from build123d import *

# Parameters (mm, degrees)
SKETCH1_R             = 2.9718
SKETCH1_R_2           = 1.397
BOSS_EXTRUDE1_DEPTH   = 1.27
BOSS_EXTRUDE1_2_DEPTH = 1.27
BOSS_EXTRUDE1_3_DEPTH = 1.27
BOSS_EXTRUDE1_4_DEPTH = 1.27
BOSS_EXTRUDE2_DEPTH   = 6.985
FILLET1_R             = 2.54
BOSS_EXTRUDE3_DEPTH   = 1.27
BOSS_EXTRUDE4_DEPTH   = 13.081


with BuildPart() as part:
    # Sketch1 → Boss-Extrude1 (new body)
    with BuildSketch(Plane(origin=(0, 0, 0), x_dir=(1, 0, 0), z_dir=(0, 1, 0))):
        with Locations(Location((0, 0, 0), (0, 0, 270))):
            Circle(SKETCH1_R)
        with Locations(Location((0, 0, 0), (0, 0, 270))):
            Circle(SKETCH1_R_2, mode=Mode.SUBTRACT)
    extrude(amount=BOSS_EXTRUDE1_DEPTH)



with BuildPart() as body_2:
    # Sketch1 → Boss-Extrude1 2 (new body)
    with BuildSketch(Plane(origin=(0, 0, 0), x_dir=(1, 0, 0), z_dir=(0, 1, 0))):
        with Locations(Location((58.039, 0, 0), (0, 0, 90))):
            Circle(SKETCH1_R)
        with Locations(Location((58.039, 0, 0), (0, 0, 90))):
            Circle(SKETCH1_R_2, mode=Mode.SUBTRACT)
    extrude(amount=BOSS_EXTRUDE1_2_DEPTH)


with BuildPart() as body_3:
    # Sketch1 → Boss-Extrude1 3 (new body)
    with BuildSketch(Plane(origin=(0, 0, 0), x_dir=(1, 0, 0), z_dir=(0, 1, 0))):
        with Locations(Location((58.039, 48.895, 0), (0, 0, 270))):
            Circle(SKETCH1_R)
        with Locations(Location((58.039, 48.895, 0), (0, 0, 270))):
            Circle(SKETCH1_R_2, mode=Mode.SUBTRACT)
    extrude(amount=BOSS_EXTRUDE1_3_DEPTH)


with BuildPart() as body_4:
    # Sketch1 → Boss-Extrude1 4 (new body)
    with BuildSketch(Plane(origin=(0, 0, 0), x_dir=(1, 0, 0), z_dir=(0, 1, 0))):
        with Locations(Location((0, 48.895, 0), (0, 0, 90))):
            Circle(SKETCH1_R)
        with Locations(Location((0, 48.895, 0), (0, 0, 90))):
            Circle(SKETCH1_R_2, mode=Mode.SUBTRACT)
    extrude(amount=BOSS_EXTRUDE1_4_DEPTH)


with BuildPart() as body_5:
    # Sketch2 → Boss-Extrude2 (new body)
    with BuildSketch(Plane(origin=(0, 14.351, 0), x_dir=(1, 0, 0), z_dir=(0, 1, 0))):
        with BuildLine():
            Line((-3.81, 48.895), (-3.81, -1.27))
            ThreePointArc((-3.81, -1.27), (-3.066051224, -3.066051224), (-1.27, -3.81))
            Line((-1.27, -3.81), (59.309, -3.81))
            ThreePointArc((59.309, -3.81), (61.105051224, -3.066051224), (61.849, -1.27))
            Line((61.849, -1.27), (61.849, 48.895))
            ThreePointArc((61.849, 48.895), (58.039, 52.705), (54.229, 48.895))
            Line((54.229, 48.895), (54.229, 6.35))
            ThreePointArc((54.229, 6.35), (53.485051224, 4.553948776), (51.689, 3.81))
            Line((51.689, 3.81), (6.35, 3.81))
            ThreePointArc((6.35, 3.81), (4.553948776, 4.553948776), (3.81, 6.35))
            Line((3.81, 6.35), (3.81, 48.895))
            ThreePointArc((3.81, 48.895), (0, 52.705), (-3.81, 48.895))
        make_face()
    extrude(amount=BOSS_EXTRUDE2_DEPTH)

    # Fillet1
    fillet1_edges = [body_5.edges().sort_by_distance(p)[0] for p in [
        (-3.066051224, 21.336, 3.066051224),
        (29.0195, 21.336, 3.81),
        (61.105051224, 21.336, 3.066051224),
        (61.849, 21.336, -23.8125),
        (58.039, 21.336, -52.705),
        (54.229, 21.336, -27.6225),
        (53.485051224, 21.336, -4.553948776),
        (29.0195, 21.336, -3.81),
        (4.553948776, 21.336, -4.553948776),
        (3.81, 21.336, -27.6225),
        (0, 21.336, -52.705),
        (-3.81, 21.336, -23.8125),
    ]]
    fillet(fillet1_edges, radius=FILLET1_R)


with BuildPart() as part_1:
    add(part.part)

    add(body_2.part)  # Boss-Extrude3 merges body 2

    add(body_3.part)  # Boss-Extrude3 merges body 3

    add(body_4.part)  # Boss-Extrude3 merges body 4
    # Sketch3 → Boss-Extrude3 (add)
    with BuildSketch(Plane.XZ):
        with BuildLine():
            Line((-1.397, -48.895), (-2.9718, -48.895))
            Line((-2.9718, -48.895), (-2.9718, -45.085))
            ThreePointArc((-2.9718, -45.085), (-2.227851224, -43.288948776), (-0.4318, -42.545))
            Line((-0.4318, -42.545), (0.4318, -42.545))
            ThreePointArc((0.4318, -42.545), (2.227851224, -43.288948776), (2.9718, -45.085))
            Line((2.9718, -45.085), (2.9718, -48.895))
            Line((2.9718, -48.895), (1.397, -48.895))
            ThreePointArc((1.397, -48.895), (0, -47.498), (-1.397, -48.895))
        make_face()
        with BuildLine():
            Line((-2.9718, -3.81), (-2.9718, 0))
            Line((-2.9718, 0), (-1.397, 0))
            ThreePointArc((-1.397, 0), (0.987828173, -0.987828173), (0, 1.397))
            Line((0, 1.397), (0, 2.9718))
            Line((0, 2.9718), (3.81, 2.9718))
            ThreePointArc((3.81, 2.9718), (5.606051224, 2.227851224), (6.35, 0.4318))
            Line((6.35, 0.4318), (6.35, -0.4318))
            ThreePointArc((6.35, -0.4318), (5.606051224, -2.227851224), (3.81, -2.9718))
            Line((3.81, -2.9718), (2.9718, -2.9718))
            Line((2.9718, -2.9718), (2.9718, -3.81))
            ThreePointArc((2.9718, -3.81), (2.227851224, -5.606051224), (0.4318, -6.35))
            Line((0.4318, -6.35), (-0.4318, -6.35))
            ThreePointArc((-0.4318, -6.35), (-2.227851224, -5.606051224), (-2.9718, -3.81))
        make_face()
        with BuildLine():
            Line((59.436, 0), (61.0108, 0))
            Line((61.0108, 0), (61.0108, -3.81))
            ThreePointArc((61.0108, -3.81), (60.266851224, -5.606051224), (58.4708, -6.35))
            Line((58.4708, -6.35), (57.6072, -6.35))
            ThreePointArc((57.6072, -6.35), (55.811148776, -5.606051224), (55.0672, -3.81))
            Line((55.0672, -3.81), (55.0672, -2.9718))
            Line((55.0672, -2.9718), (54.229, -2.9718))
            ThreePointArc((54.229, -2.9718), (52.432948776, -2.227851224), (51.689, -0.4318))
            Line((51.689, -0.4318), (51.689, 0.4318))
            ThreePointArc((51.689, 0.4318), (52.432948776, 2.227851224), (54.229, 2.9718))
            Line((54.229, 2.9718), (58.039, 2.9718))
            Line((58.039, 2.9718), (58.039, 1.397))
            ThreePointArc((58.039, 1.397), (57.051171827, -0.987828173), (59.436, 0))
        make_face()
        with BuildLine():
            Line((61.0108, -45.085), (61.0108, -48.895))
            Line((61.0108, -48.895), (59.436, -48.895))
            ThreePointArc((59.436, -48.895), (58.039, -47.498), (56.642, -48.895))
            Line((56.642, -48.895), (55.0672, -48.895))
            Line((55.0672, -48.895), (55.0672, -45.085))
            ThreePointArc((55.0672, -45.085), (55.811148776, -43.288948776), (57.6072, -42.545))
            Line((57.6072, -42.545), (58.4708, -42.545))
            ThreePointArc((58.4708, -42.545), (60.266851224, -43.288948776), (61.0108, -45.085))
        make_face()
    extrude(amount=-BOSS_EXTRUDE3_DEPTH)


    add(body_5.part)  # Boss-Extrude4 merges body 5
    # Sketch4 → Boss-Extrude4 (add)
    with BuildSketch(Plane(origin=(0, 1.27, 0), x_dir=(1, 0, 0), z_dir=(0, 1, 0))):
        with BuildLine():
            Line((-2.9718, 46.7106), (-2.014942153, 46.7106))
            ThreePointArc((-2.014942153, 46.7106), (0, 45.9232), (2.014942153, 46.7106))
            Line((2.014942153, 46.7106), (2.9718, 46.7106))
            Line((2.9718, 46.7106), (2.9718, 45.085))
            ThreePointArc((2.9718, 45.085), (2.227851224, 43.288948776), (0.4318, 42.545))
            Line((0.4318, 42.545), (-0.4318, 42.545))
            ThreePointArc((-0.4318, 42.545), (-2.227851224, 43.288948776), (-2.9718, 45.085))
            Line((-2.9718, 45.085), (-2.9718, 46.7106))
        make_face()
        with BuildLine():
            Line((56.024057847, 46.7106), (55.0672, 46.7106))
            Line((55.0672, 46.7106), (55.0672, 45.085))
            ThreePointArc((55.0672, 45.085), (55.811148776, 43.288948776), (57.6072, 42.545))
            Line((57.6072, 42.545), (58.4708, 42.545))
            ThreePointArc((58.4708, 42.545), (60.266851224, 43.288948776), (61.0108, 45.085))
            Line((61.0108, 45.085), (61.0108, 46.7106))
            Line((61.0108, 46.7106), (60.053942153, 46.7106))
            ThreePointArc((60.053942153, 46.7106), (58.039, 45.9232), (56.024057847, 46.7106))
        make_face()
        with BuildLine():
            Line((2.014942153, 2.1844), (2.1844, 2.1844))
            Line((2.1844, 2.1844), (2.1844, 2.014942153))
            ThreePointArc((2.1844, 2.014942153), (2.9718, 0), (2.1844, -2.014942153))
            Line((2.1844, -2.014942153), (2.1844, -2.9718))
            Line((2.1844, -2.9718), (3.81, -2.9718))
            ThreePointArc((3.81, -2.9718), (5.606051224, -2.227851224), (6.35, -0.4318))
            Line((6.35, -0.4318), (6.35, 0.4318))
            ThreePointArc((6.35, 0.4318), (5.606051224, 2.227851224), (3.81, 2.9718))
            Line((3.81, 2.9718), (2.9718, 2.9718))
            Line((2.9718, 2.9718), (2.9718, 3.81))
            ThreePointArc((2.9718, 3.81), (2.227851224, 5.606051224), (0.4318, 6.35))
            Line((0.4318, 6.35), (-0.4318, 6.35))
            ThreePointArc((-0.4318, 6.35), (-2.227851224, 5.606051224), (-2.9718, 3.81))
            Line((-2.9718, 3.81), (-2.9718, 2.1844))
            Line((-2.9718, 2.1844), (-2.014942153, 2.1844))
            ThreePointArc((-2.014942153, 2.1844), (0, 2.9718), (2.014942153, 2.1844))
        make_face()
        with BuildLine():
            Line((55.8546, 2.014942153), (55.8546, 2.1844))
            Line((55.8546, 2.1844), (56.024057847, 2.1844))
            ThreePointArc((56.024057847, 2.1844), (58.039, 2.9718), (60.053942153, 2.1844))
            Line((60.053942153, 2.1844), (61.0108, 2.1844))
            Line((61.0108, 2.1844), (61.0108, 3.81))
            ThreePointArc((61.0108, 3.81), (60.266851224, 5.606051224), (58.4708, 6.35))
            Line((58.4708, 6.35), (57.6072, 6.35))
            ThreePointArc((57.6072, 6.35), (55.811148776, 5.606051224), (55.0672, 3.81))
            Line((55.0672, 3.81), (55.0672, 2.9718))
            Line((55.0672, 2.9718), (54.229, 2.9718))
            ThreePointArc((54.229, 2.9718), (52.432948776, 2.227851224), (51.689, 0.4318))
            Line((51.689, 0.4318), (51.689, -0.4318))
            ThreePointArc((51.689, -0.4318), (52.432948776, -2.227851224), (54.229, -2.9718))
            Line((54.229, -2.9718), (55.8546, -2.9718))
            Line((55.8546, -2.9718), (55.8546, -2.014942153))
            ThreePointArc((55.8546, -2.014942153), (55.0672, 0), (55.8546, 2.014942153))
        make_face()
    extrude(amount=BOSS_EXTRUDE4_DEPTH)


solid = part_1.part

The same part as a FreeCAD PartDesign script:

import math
import FreeCAD as App
import Part
import Sketcher
from FreeCAD import Vector
Q = App.Units.Quantity


def edges_at(feature, points):
    """Names of the edges that pass closest to the given points."""
    edges = feature.Shape.Edges
    near = lambda p: min(range(len(edges)), key=lambda i: edges[i].distToShape(Part.Vertex(*p))[0])
    return sorted({f"Edge{near(p) + 1}" for p in points})

doc = App.newDocument("Part")
body = doc.addObject("PartDesign::Body", "Body")

sketch1 = body.newObject("Sketcher::SketchObject", "Sketch")
sketch1.AttachmentSupport = (doc.getObject("XZ_Plane"), [""])
sketch1.MapMode = "FlatFace"
sketch1.addGeometry([
    Part.Circle(Vector(0, 0, 0), Vector(0, 0, 1), 2.9718),
    Part.Circle(Vector(0, 0, 0), Vector(0, 0, 1), 1.397),
], False)
sketch1.addConstraint([
    Sketcher.Constraint("Coincident", 0, 3, -1, 1),
    Sketcher.Constraint("Coincident", 1, 3, -1, 1),
    Sketcher.Constraint("Diameter", 1, Q("0.11 in")),
    Sketcher.Constraint("Diameter", 0, Q("0.234 in")),
])
pad1 = body.newObject("PartDesign::Pad", "Pad")
pad1.Profile = sketch1
pad1.Length = Q("0.05 in")
pad1.Reversed = True
body2 = doc.addObject("PartDesign::Body", "Body001")

sketch2 = body2.newObject("Sketcher::SketchObject", "Sketch001")
sketch2.AttachmentSupport = (doc.getObject("XZ_Plane001"), [""])
sketch2.MapMode = "FlatFace"
sketch2.addGeometry([
    Part.Circle(Vector(58.039, 0, 0), Vector(0, 0, 1), 2.9718),
    Part.Circle(Vector(58.039, 0, 0), Vector(0, 0, 1), 1.397),
], False)
sketch2.addConstraint([
    Sketcher.Constraint("Coincident", 1, 3, 0, 3),
    Sketcher.Constraint("PointOnObject", 0, 3, -1),
    Sketcher.Constraint("Diameter", 1, Q("0.11 in")),
    Sketcher.Constraint("Diameter", 0, Q("0.234 in")),
    Sketcher.Constraint("DistanceX", -1, 1, 0, 3, Q("2.285 in")),
])
pad2 = body2.newObject("PartDesign::Pad", "Pad001")
pad2.Profile = sketch2
pad2.Length = Q("0.05 in")
pad2.Reversed = True
body3 = doc.addObject("PartDesign::Body", "Body002")

sketch3 = body3.newObject("Sketcher::SketchObject", "Sketch002")
sketch3.AttachmentSupport = (doc.getObject("XZ_Plane002"), [""])
sketch3.MapMode = "FlatFace"
sketch3.addGeometry([
    Part.Circle(Vector(58.039, -48.895, 0), Vector(0, 0, 1), 2.9718),
    Part.Circle(Vector(58.039, -48.895, 0), Vector(0, 0, 1), 1.397),
], False)
sketch3.addConstraint([
    Sketcher.Constraint("Coincident", 1, 3, 0, 3),
    Sketcher.Constraint("Diameter", 1, Q("0.11 in")),
    Sketcher.Constraint("Diameter", 0, Q("0.234 in")),
    Sketcher.Constraint("DistanceX", -1, 1, 0, 3, Q("2.285 in")),
    Sketcher.Constraint("DistanceY", 0, 3, -1, 1, Q("1.925 in")),
])
pad3 = body3.newObject("PartDesign::Pad", "Pad002")
pad3.Profile = sketch3
pad3.Length = Q("0.05 in")
pad3.Reversed = True
body4 = doc.addObject("PartDesign::Body", "Body003")

sketch4 = body4.newObject("Sketcher::SketchObject", "Sketch003")
sketch4.AttachmentSupport = (doc.getObject("XZ_Plane003"), [""])
sketch4.MapMode = "FlatFace"
sketch4.addGeometry([
    Part.Circle(Vector(0, -48.895, 0), Vector(0, 0, 1), 2.9718),
    Part.Circle(Vector(0, -48.895, 0), Vector(0, 0, 1), 1.397),
], False)
sketch4.addConstraint([
    Sketcher.Constraint("Coincident", 1, 3, 0, 3),
    Sketcher.Constraint("PointOnObject", 0, 3, -2),
    Sketcher.Constraint("Diameter", 1, Q("0.11 in")),
    Sketcher.Constraint("Diameter", 0, Q("0.234 in")),
    Sketcher.Constraint("DistanceY", 0, 3, -1, 1, Q("1.925 in")),
])
pad4 = body4.newObject("PartDesign::Pad", "Pad003")
pad4.Profile = sketch4
pad4.Length = Q("0.05 in")
pad4.Reversed = True
body5 = doc.addObject("PartDesign::Body", "Body004")

sketch5 = body5.newObject("Sketcher::SketchObject", "Sketch004")
sketch5.AttachmentSupport = (doc.getObject("XZ_Plane004"), [""])
sketch5.MapMode = "FlatFace"
sketch5.AttachmentOffset = App.Placement(Vector(0, 0, -0.565 * 25.4), App.Rotation())
sketch5.addGeometry([
    Part.LineSegment(Vector(-3.81, -48.895, 0), Vector(-3.81, 1.27, 0)),
    Part.ArcOfCircle(Part.Circle(Vector(-1.27, 1.27, 0), Vector(0, 0, 1), 2.54), math.radians(90), math.radians(180)),
    Part.LineSegment(Vector(-1.27, 3.81, 0), Vector(59.309, 3.81, 0)),
    Part.ArcOfCircle(Part.Circle(Vector(59.309, 1.27, 0), Vector(0, 0, 1), 2.54), math.radians(0), math.radians(90)),
    Part.LineSegment(Vector(61.849, 1.27, 0), Vector(61.849, -48.895, 0)),
    Part.ArcOfCircle(Part.Circle(Vector(58.039, -48.895, 0), Vector(0, 0, 1), 3.81), math.radians(180), math.radians(360)),
    Part.LineSegment(Vector(54.229, -48.895, 0), Vector(54.229, -6.35, 0)),
    Part.ArcOfCircle(Part.Circle(Vector(51.689, -6.35, 0), Vector(0, 0, 1), 2.54), math.radians(0), math.radians(90)),
    Part.LineSegment(Vector(51.689, -3.81, 0), Vector(6.35, -3.81, 0)),
    Part.ArcOfCircle(Part.Circle(Vector(6.35, -6.35, 0), Vector(0, 0, 1), 2.54), math.radians(90), math.radians(180)),
    Part.LineSegment(Vector(3.81, -6.35, 0), Vector(3.81, -48.895, 0)),
    Part.ArcOfCircle(Part.Circle(Vector(0, -48.895, 0), Vector(0, 0, 1), 3.81), math.radians(180), math.radians(360)),
], False)
sketch5.addConstraint([
    Sketcher.Constraint("Tangent", 0, 2, 1, 2),
    Sketcher.Constraint("Tangent", 1, 1, 2, 1),
    Sketcher.Constraint("Tangent", 2, 2, 3, 2),
    Sketcher.Constraint("Tangent", 3, 1, 4, 1),
    Sketcher.Constraint("Tangent", 4, 2, 5, 2),
    Sketcher.Constraint("Tangent", 5, 1, 6, 1),
    Sketcher.Constraint("Tangent", 6, 2, 7, 1),
    Sketcher.Constraint("Tangent", 7, 2, 8, 1),
    Sketcher.Constraint("Tangent", 8, 2, 9, 1),
    Sketcher.Constraint("Tangent", 9, 2, 10, 1),
    Sketcher.Constraint("Tangent", 10, 2, 11, 2),
    Sketcher.Constraint("Tangent", 11, 1, 0, 1),
    Sketcher.Constraint("Vertical", 0),
    Sketcher.Constraint("Horizontal", 2),
    Sketcher.Constraint("Vertical", 4),
    Sketcher.Constraint("Vertical", 6),
    Sketcher.Constraint("Horizontal", 8),
    Sketcher.Constraint("Vertical", 10),
    Sketcher.Constraint("Equal", 1, 3),
    Sketcher.Constraint("Equal", 3, 7),
    Sketcher.Constraint("Equal", 7, 9),
    Sketcher.Constraint("Equal", 5, 11),
    Sketcher.Constraint("PointOnObject", 11, 3, -2),
    Sketcher.Constraint("Horizontal", 5, 3, 11, 3),
    Sketcher.Constraint("Radius", 1, Q("0.1 in")),
    Sketcher.Constraint("Radius", 5, Q("0.15 in")),
    Sketcher.Constraint("DistanceY", 7, 3, 3, 3, Q("0.3 in")),
    Sketcher.Constraint("DistanceX", 2, 1, 2, 2, Q("2.385 in")),
    Sketcher.Constraint("DistanceY", 0, 1, 0, 2, Q("1.975 in")),
    Sketcher.Constraint("DistanceY", -1, 1, 1, 3, Q("0.05 in")),
])
pad5 = body5.newObject("PartDesign::Pad", "Pad004")
pad5.Profile = sketch5
pad5.Length = Q("0.275 in")
pad5.Reversed = True
doc.recompute()

fillet = body5.newObject("PartDesign::Fillet", "Fillet")
fillet.Base = (pad5, edges_at(pad5, [
    (-3.066, 21.336, 3.066),
    (29.02, 21.336, 3.81),
    (61.105, 21.336, 3.066),
    (61.849, 21.336, -23.812),
    (58.039, 21.336, -52.705),
    (54.229, 21.336, -27.622),
    (53.485, 21.336, -4.554),
    (29.02, 21.336, -3.81),
    (4.554, 21.336, -4.554),
    (3.81, 21.336, -27.622),
    (0, 21.336, -52.705),
    (-3.81, 21.336, -23.812),
]))
fillet.Radius = Q("0.1 in")
body.AllowCompound = True
doc.recompute()

boolean = body.newObject("PartDesign::Boolean", "Boolean")
boolean.Type = "Fuse"
boolean.addObjects([body2])
doc.recompute()

boolean2 = body.newObject("PartDesign::Boolean", "Boolean001")
boolean2.Type = "Fuse"
boolean2.addObjects([body3])
doc.recompute()

boolean3 = body.newObject("PartDesign::Boolean", "Boolean002")
boolean3.Type = "Fuse"
boolean3.addObjects([body4])

sketch6 = body.newObject("Sketcher::SketchObject", "Sketch005")
sketch6.AttachmentSupport = (doc.getObject("XZ_Plane"), [""])
sketch6.MapMode = "FlatFace"
sketch6.addGeometry([
    Part.LineSegment(Vector(-2.9718, -48.895, 0), Vector(-1.397, -48.895, 0)),
    Part.ArcOfCircle(Part.Circle(Vector(0, -48.895, 0), Vector(0, 0, 1), 1.397), math.radians(0), math.radians(180)),
    Part.LineSegment(Vector(1.397, -48.895, 0), Vector(2.9718, -48.895, 0)),
    Part.LineSegment(Vector(2.9718, -48.895, 0), Vector(2.9718, -45.085, 0)),
    Part.ArcOfCircle(Part.Circle(Vector(0.4318, -45.085, 0), Vector(0, 0, 1), 2.54), math.radians(0), math.radians(90)),
    Part.LineSegment(Vector(0.4318, -42.545, 0), Vector(-0.4318, -42.545, 0)),
    Part.ArcOfCircle(Part.Circle(Vector(-0.4318, -45.085, 0), Vector(0, 0, 1), 2.54), math.radians(90), math.radians(180)),
    Part.LineSegment(Vector(-2.9718, -45.085, 0), Vector(-2.9718, -48.895, 0)),
    Part.LineSegment(Vector(-2.9718, 0, 0), Vector(-2.9718, -3.81, 0)),
    Part.ArcOfCircle(Part.Circle(Vector(-0.4318, -3.81, 0), Vector(0, 0, 1), 2.54), math.radians(-180), math.radians(-90)),
    Part.LineSegment(Vector(-0.4318, -6.35, 0), Vector(0.4318, -6.35, 0)),
    Part.ArcOfCircle(Part.Circle(Vector(0.4318, -3.81, 0), Vector(0, 0, 1), 2.54), math.radians(-90), math.radians(0)),
    Part.LineSegment(Vector(2.9718, -3.81, 0), Vector(2.9718, -2.9718, 0)),
    Part.LineSegment(Vector(2.9718, -2.9718, 0), Vector(3.81, -2.9718, 0)),
    Part.ArcOfCircle(Part.Circle(Vector(3.81, -0.4318, 0), Vector(0, 0, 1), 2.54), math.radians(-90), math.radians(0)),
    Part.LineSegment(Vector(6.35, -0.4318, 0), Vector(6.35, 0.4318, 0)),
    Part.ArcOfCircle(Part.Circle(Vector(3.81, 0.4318, 0), Vector(0, 0, 1), 2.54), math.radians(0), math.radians(90)),
    Part.LineSegment(Vector(3.81, 2.9718, 0), Vector(0, 2.9718, 0)),
    Part.LineSegment(Vector(0, 2.9718, 0), Vector(0, 1.397, 0)),
    Part.ArcOfCircle(Part.Circle(Vector(0, 0, 0), Vector(0, 0, 1), 1.397), math.radians(180), math.radians(450)),
    Part.LineSegment(Vector(-1.397, 0, 0), Vector(-2.9718, 0, 0)),
    Part.LineSegment(Vector(61.0108, 0, 0), Vector(59.436, 0, 0)),
    Part.ArcOfCircle(Part.Circle(Vector(58.039, 0, 0), Vector(0, 0, 1), 1.397), math.radians(90), math.radians(360)),
    Part.LineSegment(Vector(58.039, 1.397, 0), Vector(58.039, 2.9718, 0)),
    Part.LineSegment(Vector(58.039, 2.9718, 0), Vector(54.229, 2.9718, 0)),
    Part.ArcOfCircle(Part.Circle(Vector(54.229, 0.4318, 0), Vector(0, 0, 1), 2.54), math.radians(90), math.radians(180)),
    Part.LineSegment(Vector(51.689, 0.4318, 0), Vector(51.689, -0.4318, 0)),
    Part.ArcOfCircle(Part.Circle(Vector(54.229, -0.4318, 0), Vector(0, 0, 1), 2.54), math.radians(-180), math.radians(-90)),
    Part.LineSegment(Vector(54.229, -2.9718, 0), Vector(55.0672, -2.9718, 0)),
    Part.LineSegment(Vector(55.0672, -2.9718, 0), Vector(55.0672, -3.81, 0)),
    Part.ArcOfCircle(Part.Circle(Vector(57.6072, -3.81, 0), Vector(0, 0, 1), 2.54), math.radians(-180), math.radians(-90)),
    Part.LineSegment(Vector(57.6072, -6.35, 0), Vector(58.4708, -6.35, 0)),
    Part.ArcOfCircle(Part.Circle(Vector(58.4708, -3.81, 0), Vector(0, 0, 1), 2.54), math.radians(-90), math.radians(0)),
    Part.LineSegment(Vector(61.0108, -3.81, 0), Vector(61.0108, 0, 0)),
    Part.LineSegment(Vector(61.0108, -48.895, 0), Vector(61.0108, -45.085, 0)),
    Part.ArcOfCircle(Part.Circle(Vector(58.4708, -45.085, 0), Vector(0, 0, 1), 2.54), math.radians(0), math.radians(90)),
    Part.LineSegment(Vector(58.4708, -42.545, 0), Vector(57.6072, -42.545, 0)),
    Part.ArcOfCircle(Part.Circle(Vector(57.6072, -45.085, 0), Vector(0, 0, 1), 2.54), math.radians(90), math.radians(180)),
    Part.LineSegment(Vector(55.0672, -45.085, 0), Vector(55.0672, -48.895, 0)),
    Part.LineSegment(Vector(55.0672, -48.895, 0), Vector(56.642, -48.895, 0)),
    Part.ArcOfCircle(Part.Circle(Vector(58.039, -48.895, 0), Vector(0, 0, 1), 1.397), math.radians(0), math.radians(180)),
    Part.LineSegment(Vector(59.436, -48.895, 0), Vector(61.0108, -48.895, 0)),
], False)
sketch6.addConstraint([
    Sketcher.Constraint("Coincident", 0, 2, 1, 2),
    Sketcher.Constraint("Coincident", 1, 1, 2, 1),
    Sketcher.Constraint("Coincident", 2, 2, 3, 1),
    Sketcher.Constraint("Tangent", 3, 2, 4, 1),
    Sketcher.Constraint("Tangent", 4, 2, 5, 1),
    Sketcher.Constraint("Tangent", 5, 2, 6, 1),
    Sketcher.Constraint("Tangent", 6, 2, 7, 1),
    Sketcher.Constraint("Coincident", 7, 2, 0, 1),
    Sketcher.Constraint("Tangent", 8, 2, 9, 1),
    Sketcher.Constraint("Tangent", 9, 2, 10, 1),
    Sketcher.Constraint("Tangent", 10, 2, 11, 1),
    Sketcher.Constraint("Tangent", 11, 2, 12, 1),
    Sketcher.Constraint("Coincident", 12, 2, 13, 1),
    Sketcher.Constraint("Tangent", 13, 2, 14, 1),
    Sketcher.Constraint("Tangent", 14, 2, 15, 1),
    Sketcher.Constraint("Tangent", 15, 2, 16, 1),
    Sketcher.Constraint("Tangent", 16, 2, 17, 1),
    Sketcher.Constraint("Coincident", 17, 2, 18, 1),
    Sketcher.Constraint("Coincident", 18, 2, 19, 2),
    Sketcher.Constraint("Coincident", 19, 1, 20, 1),
    Sketcher.Constraint("Coincident", 20, 2, 8, 1),
    Sketcher.Constraint("Coincident", 21, 2, 22, 2),
    Sketcher.Constraint("Coincident", 22, 1, 23, 1),
    Sketcher.Constraint("Coincident", 23, 2, 24, 1),
    Sketcher.Constraint("Tangent", 24, 2, 25, 1),
    Sketcher.Constraint("Tangent", 25, 2, 26, 1),
    Sketcher.Constraint("Tangent", 26, 2, 27, 1),
    Sketcher.Constraint("Tangent", 27, 2, 28, 1),
    Sketcher.Constraint("Coincident", 28, 2, 29, 1),
    Sketcher.Constraint("Tangent", 29, 2, 30, 1),
    Sketcher.Constraint("Tangent", 30, 2, 31, 1),
    Sketcher.Constraint("Tangent", 31, 2, 32, 1),
    Sketcher.Constraint("Tangent", 32, 2, 33, 1),
    Sketcher.Constraint("Coincident", 33, 2, 21, 1),
    Sketcher.Constraint("Tangent", 34, 2, 35, 1),
    Sketcher.Constraint("Tangent", 35, 2, 36, 1),
    Sketcher.Constraint("Tangent", 36, 2, 37, 1),
    Sketcher.Constraint("Tangent", 37, 2, 38, 1),
    Sketcher.Constraint("Coincident", 38, 2, 39, 1),
    Sketcher.Constraint("Coincident", 39, 2, 40, 2),
    Sketcher.Constraint("Coincident", 40, 1, 41, 1),
    Sketcher.Constraint("Coincident", 41, 2, 34, 1),
    Sketcher.Constraint("Horizontal", 0),
    Sketcher.Constraint("Horizontal", 2),
    Sketcher.Constraint("Vertical", 3),
    Sketcher.Constraint("Horizontal", 5),
    Sketcher.Constraint("Vertical", 7),
    Sketcher.Constraint("Vertical", 8),
    Sketcher.Constraint("Horizontal", 10),
    Sketcher.Constraint("Vertical", 12),
    Sketcher.Constraint("Horizontal", 13),
    Sketcher.Constraint("Vertical", 15),
    Sketcher.Constraint("Horizontal", 17),
    Sketcher.Constraint("Vertical", 18),
    Sketcher.Constraint("Horizontal", 20),
    Sketcher.Constraint("Horizontal", 21),
    Sketcher.Constraint("Vertical", 23),
    Sketcher.Constraint("Horizontal", 24),
    Sketcher.Constraint("Vertical", 26),
    Sketcher.Constraint("Horizontal", 28),
    Sketcher.Constraint("Vertical", 29),
    Sketcher.Constraint("Horizontal", 31),
    Sketcher.Constraint("Vertical", 33),
    Sketcher.Constraint("Vertical", 34),
    Sketcher.Constraint("Horizontal", 36),
    Sketcher.Constraint("Vertical", 38),
    Sketcher.Constraint("Horizontal", 39),
    Sketcher.Constraint("Horizontal", 41),
    Sketcher.Constraint("Coincident", 19, 3, -1, 1),
    Sketcher.Constraint("Equal", 4, 6),
    Sketcher.Constraint("Equal", 6, 9),
    Sketcher.Constraint("Equal", 9, 11),
    Sketcher.Constraint("Equal", 11, 14),
    Sketcher.Constraint("Equal", 14, 16),
    Sketcher.Constraint("Equal", 1, 19),
    Sketcher.Constraint("Equal", 19, 22),
    Sketcher.Constraint("Equal", 16, 25),
    Sketcher.Constraint("Equal", 25, 27),
    Sketcher.Constraint("Equal", 27, 30),
    Sketcher.Constraint("Equal", 30, 32),
    Sketcher.Constraint("Equal", 32, 35),
    Sketcher.Constraint("Equal", 35, 37),
    Sketcher.Constraint("Equal", 22, 40),
    Sketcher.Constraint("Symmetric", 0, 2, 1, 1, -2),
    Sketcher.Constraint("PointOnObject", 22, 3, -1),
    Sketcher.Constraint("PointOnObject", 17, 2, -2),
    Sketcher.Constraint("PointOnObject", 19, 1, -1),
    Sketcher.Constraint("PointOnObject", 21, 2, -1),
    Sketcher.Constraint("Horizontal", 16, 3, 25, 3),
    Sketcher.Constraint("Horizontal", 14, 3, 27, 3),
    Sketcher.Constraint("Horizontal", 11, 3, 30, 3),
    Sketcher.Constraint("Horizontal", 6, 3, 35, 3),
    Sketcher.Constraint("Horizontal", 1, 3, 40, 3),
    Sketcher.Constraint("Horizontal", 40, 3, 0, 2),
    Sketcher.Constraint("Horizontal", 7, 2, 38, 2),
    Sketcher.Constraint("Horizontal", 39, 2, 40, 1),
    Sketcher.Constraint("Vertical", 6, 3, 9, 3),
    Sketcher.Constraint("Vertical", 4, 3, 11, 3),
    Sketcher.Constraint("Vertical", 32, 3, 35, 3),
    Sketcher.Constraint("Vertical", 30, 3, 37, 3),
    Sketcher.Constraint("Vertical", 22, 3, 40, 3),
    Sketcher.Constraint("Vertical", 40, 3, 22, 1),
    Sketcher.Constraint("Equal", 0, 2),
    Sketcher.Constraint("Equal", 20, 21),
    Sketcher.Constraint("Equal", 17, 24),
    Sketcher.Constraint("Equal", 13, 28),
    Sketcher.Constraint("Equal", 24, 3),
    Sketcher.Constraint("Equal", 7, 8),
    Sketcher.Constraint("Equal", 28, 12),
    Sketcher.Constraint("Equal", 36, 15),
    Sketcher.Constraint("Radius", 4, Q("0.1 in")),
    Sketcher.Constraint("Radius", 1, Q("0.055 in")),
    Sketcher.Constraint("DistanceX", 17, 2, 17, 1, Q("0.15 in")),
    Sketcher.Constraint("DistanceX", 0, 1, 0, 2, Q("0.062 in")),
    Sketcher.Constraint("DistanceX", -1, 1, 21, 2, Q("2.34 in")),
    Sketcher.Constraint("DistanceY", 1, 3, -1, 1, Q("1.925 in")),
])
pad6 = body.newObject("PartDesign::Pad", "Pad005")
pad6.Profile = sketch6
pad6.Length = Q("0.05 in")
pad6.Reversed = True
doc.recompute()

boolean4 = body.newObject("PartDesign::Boolean", "Boolean003")
boolean4.Type = "Fuse"
boolean4.addObjects([body5])

sketch7 = body.newObject("Sketcher::SketchObject", "Sketch006")
sketch7.AttachmentSupport = (doc.getObject("XZ_Plane"), [""])
sketch7.MapMode = "FlatFace"
sketch7.AttachmentOffset = App.Placement(Vector(0, 0, -0.05 * 25.4), App.Rotation())
sketch7.addGeometry([
    Part.LineSegment(Vector(-2.014942, -46.7106, 0), Vector(-2.9718, -46.7106, 0)),
    Part.LineSegment(Vector(-2.9718, -46.7106, 0), Vector(-2.9718, -45.085, 0)),
    Part.ArcOfCircle(Part.Circle(Vector(-0.4318, -45.085, 0), Vector(0, 0, 1), 2.54), math.radians(90), math.radians(180)),
    Part.LineSegment(Vector(-0.4318, -42.545, 0), Vector(0.4318, -42.545, 0)),
    Part.ArcOfCircle(Part.Circle(Vector(0.4318, -45.085, 0), Vector(0, 0, 1), 2.54), math.radians(0), math.radians(90)),
    Part.LineSegment(Vector(2.9718, -45.085, 0), Vector(2.9718, -46.7106, 0)),
    Part.LineSegment(Vector(2.9718, -46.7106, 0), Vector(2.014942, -46.7106, 0)),
    Part.ArcOfCircle(Part.Circle(Vector(0, -48.895, 0), Vector(0, 0, 1), 2.9718), math.radians(47.310827), math.radians(132.689173)),
    Part.LineSegment(Vector(56.024058, -46.7106, 0), Vector(55.0672, -46.7106, 0)),
    Part.LineSegment(Vector(55.0672, -46.7106, 0), Vector(55.0672, -45.085, 0)),
    Part.ArcOfCircle(Part.Circle(Vector(57.6072, -45.085, 0), Vector(0, 0, 1), 2.54), math.radians(90), math.radians(180)),
    Part.LineSegment(Vector(57.6072, -42.545, 0), Vector(58.4708, -42.545, 0)),
    Part.ArcOfCircle(Part.Circle(Vector(58.4708, -45.085, 0), Vector(0, 0, 1), 2.54), math.radians(0), math.radians(90)),
    Part.LineSegment(Vector(61.0108, -45.085, 0), Vector(61.0108, -46.7106, 0)),
    Part.LineSegment(Vector(61.0108, -46.7106, 0), Vector(60.053942, -46.7106, 0)),
    Part.ArcOfCircle(Part.Circle(Vector(58.039, -48.895, 0), Vector(0, 0, 1), 2.9718), math.radians(47.310827), math.radians(132.689173)),
    Part.LineSegment(Vector(2.014942, -2.1844, 0), Vector(2.1844, -2.1844, 0)),
    Part.LineSegment(Vector(2.1844, -2.1844, 0), Vector(2.1844, -2.014942, 0)),
    Part.ArcOfCircle(Part.Circle(Vector(0, 0, 0), Vector(0, 0, 1), 2.9718), math.radians(-42.689173), math.radians(42.689173)),
    Part.LineSegment(Vector(2.1844, 2.014942, 0), Vector(2.1844, 2.9718, 0)),
    Part.LineSegment(Vector(2.1844, 2.9718, 0), Vector(3.81, 2.9718, 0)),
    Part.ArcOfCircle(Part.Circle(Vector(3.81, 0.4318, 0), Vector(0, 0, 1), 2.54), math.radians(0), math.radians(90)),
    Part.LineSegment(Vector(6.35, 0.4318, 0), Vector(6.35, -0.4318, 0)),
    Part.ArcOfCircle(Part.Circle(Vector(3.81, -0.4318, 0), Vector(0, 0, 1), 2.54), math.radians(-90), math.radians(0)),
    Part.LineSegment(Vector(3.81, -2.9718, 0), Vector(2.9718, -2.9718, 0)),
    Part.LineSegment(Vector(2.9718, -2.9718, 0), Vector(2.9718, -3.81, 0)),
    Part.ArcOfCircle(Part.Circle(Vector(0.4318, -3.81, 0), Vector(0, 0, 1), 2.54), math.radians(-90), math.radians(0)),
    Part.LineSegment(Vector(0.4318, -6.35, 0), Vector(-0.4318, -6.35, 0)),
    Part.ArcOfCircle(Part.Circle(Vector(-0.4318, -3.81, 0), Vector(0, 0, 1), 2.54), math.radians(-180), math.radians(-90)),
    Part.LineSegment(Vector(-2.9718, -3.81, 0), Vector(-2.9718, -2.1844, 0)),
    Part.LineSegment(Vector(-2.9718, -2.1844, 0), Vector(-2.014942, -2.1844, 0)),
    Part.ArcOfCircle(Part.Circle(Vector(0, 0, 0), Vector(0, 0, 1), 2.9718), math.radians(-132.689173), math.radians(-47.310827)),
    Part.LineSegment(Vector(55.8546, -2.014942, 0), Vector(55.8546, -2.1844, 0)),
    Part.LineSegment(Vector(55.8546, -2.1844, 0), Vector(56.024058, -2.1844, 0)),
    Part.ArcOfCircle(Part.Circle(Vector(58.039, 0, 0), Vector(0, 0, 1), 2.9718), math.radians(-132.689173), math.radians(-47.310827)),
    Part.LineSegment(Vector(60.053942, -2.1844, 0), Vector(61.0108, -2.1844, 0)),
    Part.LineSegment(Vector(61.0108, -2.1844, 0), Vector(61.0108, -3.81, 0)),
    Part.ArcOfCircle(Part.Circle(Vector(58.4708, -3.81, 0), Vector(0, 0, 1), 2.54), math.radians(-90), math.radians(0)),
    Part.LineSegment(Vector(58.4708, -6.35, 0), Vector(57.6072, -6.35, 0)),
    Part.ArcOfCircle(Part.Circle(Vector(57.6072, -3.81, 0), Vector(0, 0, 1), 2.54), math.radians(-180), math.radians(-90)),
    Part.LineSegment(Vector(55.0672, -3.81, 0), Vector(55.0672, -2.9718, 0)),
    Part.LineSegment(Vector(55.0672, -2.9718, 0), Vector(54.229, -2.9718, 0)),
    Part.ArcOfCircle(Part.Circle(Vector(54.229, -0.4318, 0), Vector(0, 0, 1), 2.54), math.radians(-180), math.radians(-90)),
    Part.LineSegment(Vector(51.689, -0.4318, 0), Vector(51.689, 0.4318, 0)),
    Part.ArcOfCircle(Part.Circle(Vector(54.229, 0.4318, 0), Vector(0, 0, 1), 2.54), math.radians(90), math.radians(180)),
    Part.LineSegment(Vector(54.229, 2.9718, 0), Vector(55.8546, 2.9718, 0)),
    Part.LineSegment(Vector(55.8546, 2.9718, 0), Vector(55.8546, 2.014942, 0)),
    Part.ArcOfCircle(Part.Circle(Vector(58.039, 0, 0), Vector(0, 0, 1), 2.9718), math.radians(137.310827), math.radians(222.689173)),
], False)
sketch7.addConstraint([
    Sketcher.Constraint("Coincident", 0, 2, 1, 1),
    Sketcher.Constraint("Tangent", 1, 2, 2, 2),
    Sketcher.Constraint("Tangent", 2, 1, 3, 1),
    Sketcher.Constraint("Tangent", 3, 2, 4, 2),
    Sketcher.Constraint("Tangent", 4, 1, 5, 1),
    Sketcher.Constraint("Coincident", 5, 2, 6, 1),
    Sketcher.Constraint("Coincident", 6, 2, 7, 1),
    Sketcher.Constraint("Coincident", 7, 2, 0, 1),
    Sketcher.Constraint("Coincident", 8, 2, 9, 1),
    Sketcher.Constraint("Tangent", 9, 2, 10, 2),
    Sketcher.Constraint("Tangent", 10, 1, 11, 1),
    Sketcher.Constraint("Tangent", 11, 2, 12, 2),
    Sketcher.Constraint("Tangent", 12, 1, 13, 1),
    Sketcher.Constraint("Coincident", 13, 2, 14, 1),
    Sketcher.Constraint("Coincident", 14, 2, 15, 1),
    Sketcher.Constraint("Coincident", 15, 2, 8, 1),
    Sketcher.Constraint("Coincident", 16, 2, 17, 1),
    Sketcher.Constraint("Coincident", 17, 2, 18, 1),
    Sketcher.Constraint("Coincident", 18, 2, 19, 1),
    Sketcher.Constraint("Coincident", 19, 2, 20, 1),
    Sketcher.Constraint("Tangent", 20, 2, 21, 2),
    Sketcher.Constraint("Tangent", 21, 1, 22, 1),
    Sketcher.Constraint("Tangent", 22, 2, 23, 2),
    Sketcher.Constraint("Tangent", 23, 1, 24, 1),
    Sketcher.Constraint("Coincident", 24, 2, 25, 1),
    Sketcher.Constraint("Tangent", 25, 2, 26, 2),
    Sketcher.Constraint("Tangent", 26, 1, 27, 1),
    Sketcher.Constraint("Tangent", 27, 2, 28, 2),
    Sketcher.Constraint("Tangent", 28, 1, 29, 1),
    Sketcher.Constraint("Coincident", 29, 2, 30, 1),
    Sketcher.Constraint("Coincident", 30, 2, 31, 1),
    Sketcher.Constraint("Coincident", 31, 2, 16, 1),
    Sketcher.Constraint("Coincident", 32, 2, 33, 1),
    Sketcher.Constraint("Coincident", 33, 2, 34, 1),
    Sketcher.Constraint("Coincident", 34, 2, 35, 1),
    Sketcher.Constraint("Coincident", 35, 2, 36, 1),
    Sketcher.Constraint("Tangent", 36, 2, 37, 2),
    Sketcher.Constraint("Tangent", 37, 1, 38, 1),
    Sketcher.Constraint("Tangent", 38, 2, 39, 2),
    Sketcher.Constraint("Tangent", 39, 1, 40, 1),
    Sketcher.Constraint("Coincident", 40, 2, 41, 1),
    Sketcher.Constraint("Tangent", 41, 2, 42, 2),
    Sketcher.Constraint("Tangent", 42, 1, 43, 1),
    Sketcher.Constraint("Tangent", 43, 2, 44, 2),
    Sketcher.Constraint("Tangent", 44, 1, 45, 1),
    Sketcher.Constraint("Coincident", 45, 2, 46, 1),
    Sketcher.Constraint("Coincident", 46, 2, 47, 1),
    Sketcher.Constraint("Coincident", 47, 2, 32, 1),
    Sketcher.Constraint("Horizontal", 0),
    Sketcher.Constraint("Vertical", 1),
    Sketcher.Constraint("Horizontal", 3),
    Sketcher.Constraint("Vertical", 5),
    Sketcher.Constraint("Horizontal", 6),
    Sketcher.Constraint("Horizontal", 8),
    Sketcher.Constraint("Vertical", 9),
    Sketcher.Constraint("Horizontal", 11),
    Sketcher.Constraint("Vertical", 13),
    Sketcher.Constraint("Horizontal", 14),
    Sketcher.Constraint("Horizontal", 16),
    Sketcher.Constraint("Vertical", 17),
    Sketcher.Constraint("Vertical", 19),
    Sketcher.Constraint("Horizontal", 20),
    Sketcher.Constraint("Vertical", 22),
    Sketcher.Constraint("Horizontal", 24),
    Sketcher.Constraint("Vertical", 25),
    Sketcher.Constraint("Horizontal", 27),
    Sketcher.Constraint("Vertical", 29),
    Sketcher.Constraint("Horizontal", 30),
    Sketcher.Constraint("Vertical", 32),
    Sketcher.Constraint("Horizontal", 33),
    Sketcher.Constraint("Horizontal", 35),
    Sketcher.Constraint("Vertical", 36),
    Sketcher.Constraint("Horizontal", 38),
    Sketcher.Constraint("Vertical", 40),
    Sketcher.Constraint("Horizontal", 41),
    Sketcher.Constraint("Vertical", 43),
    Sketcher.Constraint("Horizontal", 45),
    Sketcher.Constraint("Vertical", 46),
    Sketcher.Constraint("Coincident", 18, 3, -1, 1),
    Sketcher.Constraint("Coincident", 31, 3, -1, 1),
    Sketcher.Constraint("Coincident", 47, 3, 34, 3),
    Sketcher.Constraint("Equal", 2, 4),
    Sketcher.Constraint("Equal", 4, 10),
    Sketcher.Constraint("Equal", 10, 12),
    Sketcher.Constraint("Equal", 7, 15),
    Sketcher.Constraint("Equal", 15, 18),
    Sketcher.Constraint("Equal", 12, 21),
    Sketcher.Constraint("Equal", 21, 23),
    Sketcher.Constraint("Equal", 23, 26),
    Sketcher.Constraint("Equal", 26, 28),
    Sketcher.Constraint("Equal", 18, 31),
    Sketcher.Constraint("Equal", 31, 34),
    Sketcher.Constraint("Equal", 28, 37),
    Sketcher.Constraint("Equal", 37, 39),
    Sketcher.Constraint("Equal", 39, 42),
    Sketcher.Constraint("Equal", 42, 44),
    Sketcher.Constraint("Equal", 34, 47),
    Sketcher.Constraint("Symmetric", 0, 2, 5, 2, -2),
    Sketcher.Constraint("Symmetric", 46, 2, 47, 2, -1),
    Sketcher.Constraint("PointOnObject", 7, 3, -2),
    Sketcher.Constraint("Horizontal", 4, 3, 10, 3),
    Sketcher.Constraint("Horizontal", 7, 3, 15, 3),
    Sketcher.Constraint("Horizontal", 28, 3, 37, 3),
    Sketcher.Constraint("Horizontal", 23, 3, 42, 3),
    Sketcher.Constraint("Horizontal", 21, 3, 44, 3),
    Sketcher.Constraint("Horizontal", 7, 2, 8, 2),
    Sketcher.Constraint("Horizontal", 8, 2, 13, 2),
    Sketcher.Constraint("Horizontal", 16, 2, 29, 2),
    Sketcher.Constraint("Horizontal", 31, 2, 32, 2),
    Sketcher.Constraint("Horizontal", 33, 2, 34, 2),
    Sketcher.Constraint("Horizontal", 18, 2, 46, 2),
    Sketcher.Constraint("Horizontal", 17, 2, 47, 2),
    Sketcher.Constraint("Vertical", 4, 3, 26, 3),
    Sketcher.Constraint("Vertical", 2, 3, 28, 3),
    Sketcher.Constraint("Vertical", 15, 3, 34, 3),
    Sketcher.Constraint("Vertical", 12, 3, 37, 3),
    Sketcher.Constraint("Vertical", 10, 3, 39, 3),
    Sketcher.Constraint("Vertical", 7, 2, 30, 2),
    Sketcher.Constraint("Equal", 6, 8),
    Sketcher.Constraint("Equal", 3, 11),
    Sketcher.Constraint("Equal", 24, 41),
    Sketcher.Constraint("Equal", 45, 1),
    Sketcher.Constraint("Equal", 33, 17),
    Sketcher.Constraint("Equal", 35, 19),
    Sketcher.Constraint("Equal", 38, 22),
    Sketcher.Constraint("Equal", 41, 25),
    Sketcher.Constraint("Radius", 2, Q("0.1 in")),
    Sketcher.Constraint("Radius", 7, Q("0.117 in")),
    Sketcher.Constraint("DistanceX", 3, 1, 3, 2, Q("0.034 in")),
    Sketcher.Constraint("DistanceX", 20, 1, 20, 2, Q("0.064 in")),
    Sketcher.Constraint("DistanceX", 24, 2, 24, 1, Q("0.033 in")),
    Sketcher.Constraint("DistanceY", 2, 3, -1, 1, Q("1.775 in")),
    Sketcher.Constraint("DistanceX", -1, 1, 10, 3, Q("2.268 in")),
])
pad7 = body.newObject("PartDesign::Pad", "Pad006")
pad7.Profile = sketch7
pad7.Length = Q("0.515 in")
pad7.Reversed = True

doc.recompute()
